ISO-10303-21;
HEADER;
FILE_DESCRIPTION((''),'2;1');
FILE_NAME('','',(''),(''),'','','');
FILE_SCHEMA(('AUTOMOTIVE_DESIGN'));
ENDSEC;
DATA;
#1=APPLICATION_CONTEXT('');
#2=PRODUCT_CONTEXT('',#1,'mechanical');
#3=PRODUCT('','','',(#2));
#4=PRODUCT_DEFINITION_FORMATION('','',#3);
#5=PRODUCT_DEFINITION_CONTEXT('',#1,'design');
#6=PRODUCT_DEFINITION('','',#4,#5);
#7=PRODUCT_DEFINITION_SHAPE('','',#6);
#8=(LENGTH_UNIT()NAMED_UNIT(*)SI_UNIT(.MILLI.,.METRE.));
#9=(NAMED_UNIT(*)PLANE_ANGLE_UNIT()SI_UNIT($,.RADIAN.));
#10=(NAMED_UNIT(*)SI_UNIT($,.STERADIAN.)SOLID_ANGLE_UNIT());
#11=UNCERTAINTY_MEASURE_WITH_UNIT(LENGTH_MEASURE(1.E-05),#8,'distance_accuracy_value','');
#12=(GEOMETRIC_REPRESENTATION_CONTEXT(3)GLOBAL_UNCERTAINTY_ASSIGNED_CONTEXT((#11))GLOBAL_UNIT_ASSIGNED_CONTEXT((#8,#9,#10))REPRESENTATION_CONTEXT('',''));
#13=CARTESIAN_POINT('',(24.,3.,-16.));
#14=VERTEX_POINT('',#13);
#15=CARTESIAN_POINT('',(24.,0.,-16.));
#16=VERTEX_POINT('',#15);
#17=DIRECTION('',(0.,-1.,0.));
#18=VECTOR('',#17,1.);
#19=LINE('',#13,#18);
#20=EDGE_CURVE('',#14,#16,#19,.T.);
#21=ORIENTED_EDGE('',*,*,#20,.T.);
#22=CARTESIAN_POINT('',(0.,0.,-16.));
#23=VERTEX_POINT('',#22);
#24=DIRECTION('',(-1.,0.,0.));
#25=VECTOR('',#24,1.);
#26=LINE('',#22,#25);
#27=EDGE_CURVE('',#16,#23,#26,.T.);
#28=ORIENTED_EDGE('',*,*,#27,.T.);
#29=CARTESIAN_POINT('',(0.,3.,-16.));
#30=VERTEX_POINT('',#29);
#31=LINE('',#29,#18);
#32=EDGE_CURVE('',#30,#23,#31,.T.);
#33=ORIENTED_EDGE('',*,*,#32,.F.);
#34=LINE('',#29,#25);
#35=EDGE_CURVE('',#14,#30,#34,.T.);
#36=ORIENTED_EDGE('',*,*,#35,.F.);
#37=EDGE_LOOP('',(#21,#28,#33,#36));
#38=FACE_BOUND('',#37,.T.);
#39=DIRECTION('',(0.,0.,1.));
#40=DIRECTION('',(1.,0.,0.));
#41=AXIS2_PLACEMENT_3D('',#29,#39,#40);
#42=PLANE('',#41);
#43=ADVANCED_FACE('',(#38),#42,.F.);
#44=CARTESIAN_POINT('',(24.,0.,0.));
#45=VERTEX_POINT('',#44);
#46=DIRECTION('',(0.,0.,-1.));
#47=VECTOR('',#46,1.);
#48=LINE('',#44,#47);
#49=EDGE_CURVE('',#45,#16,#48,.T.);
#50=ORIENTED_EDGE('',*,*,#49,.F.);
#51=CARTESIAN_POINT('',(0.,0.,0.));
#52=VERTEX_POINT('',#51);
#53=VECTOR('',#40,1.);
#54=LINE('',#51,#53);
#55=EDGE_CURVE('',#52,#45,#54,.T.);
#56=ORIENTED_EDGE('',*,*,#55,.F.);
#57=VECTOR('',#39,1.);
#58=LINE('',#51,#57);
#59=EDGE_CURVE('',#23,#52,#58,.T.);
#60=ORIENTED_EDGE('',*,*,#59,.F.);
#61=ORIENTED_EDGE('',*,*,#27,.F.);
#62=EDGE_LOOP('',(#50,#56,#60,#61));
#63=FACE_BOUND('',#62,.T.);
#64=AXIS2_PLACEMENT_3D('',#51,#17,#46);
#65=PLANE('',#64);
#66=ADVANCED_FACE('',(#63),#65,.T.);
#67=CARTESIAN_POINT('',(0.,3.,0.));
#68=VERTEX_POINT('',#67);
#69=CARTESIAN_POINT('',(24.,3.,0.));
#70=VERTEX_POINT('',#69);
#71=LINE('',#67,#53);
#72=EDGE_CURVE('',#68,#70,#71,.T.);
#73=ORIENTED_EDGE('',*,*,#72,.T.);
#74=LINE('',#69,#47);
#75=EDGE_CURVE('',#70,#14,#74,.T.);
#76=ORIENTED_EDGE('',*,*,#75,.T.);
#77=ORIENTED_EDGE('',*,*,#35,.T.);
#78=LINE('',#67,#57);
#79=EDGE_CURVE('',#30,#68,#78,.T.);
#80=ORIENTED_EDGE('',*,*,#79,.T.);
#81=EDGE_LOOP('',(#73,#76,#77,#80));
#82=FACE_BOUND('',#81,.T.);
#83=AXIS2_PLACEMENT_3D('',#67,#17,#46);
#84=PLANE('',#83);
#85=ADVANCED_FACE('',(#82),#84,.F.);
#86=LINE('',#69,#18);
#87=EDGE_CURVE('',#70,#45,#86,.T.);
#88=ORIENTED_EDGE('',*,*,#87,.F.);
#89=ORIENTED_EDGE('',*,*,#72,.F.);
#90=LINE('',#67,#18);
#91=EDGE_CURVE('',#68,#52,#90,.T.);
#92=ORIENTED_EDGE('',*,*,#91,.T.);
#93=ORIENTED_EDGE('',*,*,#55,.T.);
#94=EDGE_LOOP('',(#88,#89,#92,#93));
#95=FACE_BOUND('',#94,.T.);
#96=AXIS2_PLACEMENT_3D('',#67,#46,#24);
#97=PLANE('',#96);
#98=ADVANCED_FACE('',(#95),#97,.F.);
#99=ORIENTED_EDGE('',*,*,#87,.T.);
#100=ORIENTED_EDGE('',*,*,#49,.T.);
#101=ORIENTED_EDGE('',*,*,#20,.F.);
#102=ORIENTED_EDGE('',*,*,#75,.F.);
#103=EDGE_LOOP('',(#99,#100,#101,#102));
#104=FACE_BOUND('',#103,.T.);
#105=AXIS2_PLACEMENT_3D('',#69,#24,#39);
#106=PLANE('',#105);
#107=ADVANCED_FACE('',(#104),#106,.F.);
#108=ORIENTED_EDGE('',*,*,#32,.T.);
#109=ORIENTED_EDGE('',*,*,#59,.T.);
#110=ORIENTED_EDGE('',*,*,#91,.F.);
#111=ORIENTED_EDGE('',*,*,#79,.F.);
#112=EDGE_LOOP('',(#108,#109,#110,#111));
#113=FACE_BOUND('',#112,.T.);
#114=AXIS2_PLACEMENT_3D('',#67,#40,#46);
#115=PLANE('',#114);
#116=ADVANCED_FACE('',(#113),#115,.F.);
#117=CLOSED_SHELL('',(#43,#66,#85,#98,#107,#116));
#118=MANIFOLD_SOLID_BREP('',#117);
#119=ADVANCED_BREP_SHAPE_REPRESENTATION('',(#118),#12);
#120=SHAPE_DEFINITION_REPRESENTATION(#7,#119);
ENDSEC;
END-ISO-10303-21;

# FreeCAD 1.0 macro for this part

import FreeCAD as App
import Part
import Sketcher

V = App.Vector
Q = App.Units.Quantity


def add_polygon(sketch, points):
    """Adds a closed chain of lines whose ends are joined by coincident constraints."""
    first, n = sketch.GeometryCount, len(points)
    for a, b in zip(points, points[1:] + points[:1]):
        sketch.addGeometry(Part.LineSegment(App.Vector(*a, 0), App.Vector(*b, 0)), False)
    for i in range(n):
        sketch.addConstraint(Sketcher.Constraint("Coincident", first + i, 2, first + (i + 1) % n, 1))

doc = App.newDocument("Part")
body = doc.addObject("PartDesign::Body", "Body")

sketch1 = body.newObject("Sketcher::SketchObject", "Sketch")
sketch1.AttachmentSupport = (doc.getObject("XZ_Plane"), [""])
sketch1.MapMode = "FlatFace"
add_polygon(sketch1, [(0, -16), (0, 0), (24, 0), (24, -16)])
sketch1.addConstraint([
    Sketcher.Constraint("Vertical", 0),
    Sketcher.Constraint("Horizontal", 1),
    Sketcher.Constraint("Vertical", 2),
    Sketcher.Constraint("Horizontal", 3),
    Sketcher.Constraint("Coincident", 0, 2, -1, 1),
    Sketcher.Constraint("DistanceX", 1, 1, 1, 2, Q("24 mm")),
    Sketcher.Constraint("DistanceY", 0, 1, 0, 2, Q("16 mm")),
])
pad1 = body.newObject("PartDesign::Pad", "Pad")
pad1.Profile = sketch1
pad1.Length = 3
pad1.Reversed = True

doc.recompute()
